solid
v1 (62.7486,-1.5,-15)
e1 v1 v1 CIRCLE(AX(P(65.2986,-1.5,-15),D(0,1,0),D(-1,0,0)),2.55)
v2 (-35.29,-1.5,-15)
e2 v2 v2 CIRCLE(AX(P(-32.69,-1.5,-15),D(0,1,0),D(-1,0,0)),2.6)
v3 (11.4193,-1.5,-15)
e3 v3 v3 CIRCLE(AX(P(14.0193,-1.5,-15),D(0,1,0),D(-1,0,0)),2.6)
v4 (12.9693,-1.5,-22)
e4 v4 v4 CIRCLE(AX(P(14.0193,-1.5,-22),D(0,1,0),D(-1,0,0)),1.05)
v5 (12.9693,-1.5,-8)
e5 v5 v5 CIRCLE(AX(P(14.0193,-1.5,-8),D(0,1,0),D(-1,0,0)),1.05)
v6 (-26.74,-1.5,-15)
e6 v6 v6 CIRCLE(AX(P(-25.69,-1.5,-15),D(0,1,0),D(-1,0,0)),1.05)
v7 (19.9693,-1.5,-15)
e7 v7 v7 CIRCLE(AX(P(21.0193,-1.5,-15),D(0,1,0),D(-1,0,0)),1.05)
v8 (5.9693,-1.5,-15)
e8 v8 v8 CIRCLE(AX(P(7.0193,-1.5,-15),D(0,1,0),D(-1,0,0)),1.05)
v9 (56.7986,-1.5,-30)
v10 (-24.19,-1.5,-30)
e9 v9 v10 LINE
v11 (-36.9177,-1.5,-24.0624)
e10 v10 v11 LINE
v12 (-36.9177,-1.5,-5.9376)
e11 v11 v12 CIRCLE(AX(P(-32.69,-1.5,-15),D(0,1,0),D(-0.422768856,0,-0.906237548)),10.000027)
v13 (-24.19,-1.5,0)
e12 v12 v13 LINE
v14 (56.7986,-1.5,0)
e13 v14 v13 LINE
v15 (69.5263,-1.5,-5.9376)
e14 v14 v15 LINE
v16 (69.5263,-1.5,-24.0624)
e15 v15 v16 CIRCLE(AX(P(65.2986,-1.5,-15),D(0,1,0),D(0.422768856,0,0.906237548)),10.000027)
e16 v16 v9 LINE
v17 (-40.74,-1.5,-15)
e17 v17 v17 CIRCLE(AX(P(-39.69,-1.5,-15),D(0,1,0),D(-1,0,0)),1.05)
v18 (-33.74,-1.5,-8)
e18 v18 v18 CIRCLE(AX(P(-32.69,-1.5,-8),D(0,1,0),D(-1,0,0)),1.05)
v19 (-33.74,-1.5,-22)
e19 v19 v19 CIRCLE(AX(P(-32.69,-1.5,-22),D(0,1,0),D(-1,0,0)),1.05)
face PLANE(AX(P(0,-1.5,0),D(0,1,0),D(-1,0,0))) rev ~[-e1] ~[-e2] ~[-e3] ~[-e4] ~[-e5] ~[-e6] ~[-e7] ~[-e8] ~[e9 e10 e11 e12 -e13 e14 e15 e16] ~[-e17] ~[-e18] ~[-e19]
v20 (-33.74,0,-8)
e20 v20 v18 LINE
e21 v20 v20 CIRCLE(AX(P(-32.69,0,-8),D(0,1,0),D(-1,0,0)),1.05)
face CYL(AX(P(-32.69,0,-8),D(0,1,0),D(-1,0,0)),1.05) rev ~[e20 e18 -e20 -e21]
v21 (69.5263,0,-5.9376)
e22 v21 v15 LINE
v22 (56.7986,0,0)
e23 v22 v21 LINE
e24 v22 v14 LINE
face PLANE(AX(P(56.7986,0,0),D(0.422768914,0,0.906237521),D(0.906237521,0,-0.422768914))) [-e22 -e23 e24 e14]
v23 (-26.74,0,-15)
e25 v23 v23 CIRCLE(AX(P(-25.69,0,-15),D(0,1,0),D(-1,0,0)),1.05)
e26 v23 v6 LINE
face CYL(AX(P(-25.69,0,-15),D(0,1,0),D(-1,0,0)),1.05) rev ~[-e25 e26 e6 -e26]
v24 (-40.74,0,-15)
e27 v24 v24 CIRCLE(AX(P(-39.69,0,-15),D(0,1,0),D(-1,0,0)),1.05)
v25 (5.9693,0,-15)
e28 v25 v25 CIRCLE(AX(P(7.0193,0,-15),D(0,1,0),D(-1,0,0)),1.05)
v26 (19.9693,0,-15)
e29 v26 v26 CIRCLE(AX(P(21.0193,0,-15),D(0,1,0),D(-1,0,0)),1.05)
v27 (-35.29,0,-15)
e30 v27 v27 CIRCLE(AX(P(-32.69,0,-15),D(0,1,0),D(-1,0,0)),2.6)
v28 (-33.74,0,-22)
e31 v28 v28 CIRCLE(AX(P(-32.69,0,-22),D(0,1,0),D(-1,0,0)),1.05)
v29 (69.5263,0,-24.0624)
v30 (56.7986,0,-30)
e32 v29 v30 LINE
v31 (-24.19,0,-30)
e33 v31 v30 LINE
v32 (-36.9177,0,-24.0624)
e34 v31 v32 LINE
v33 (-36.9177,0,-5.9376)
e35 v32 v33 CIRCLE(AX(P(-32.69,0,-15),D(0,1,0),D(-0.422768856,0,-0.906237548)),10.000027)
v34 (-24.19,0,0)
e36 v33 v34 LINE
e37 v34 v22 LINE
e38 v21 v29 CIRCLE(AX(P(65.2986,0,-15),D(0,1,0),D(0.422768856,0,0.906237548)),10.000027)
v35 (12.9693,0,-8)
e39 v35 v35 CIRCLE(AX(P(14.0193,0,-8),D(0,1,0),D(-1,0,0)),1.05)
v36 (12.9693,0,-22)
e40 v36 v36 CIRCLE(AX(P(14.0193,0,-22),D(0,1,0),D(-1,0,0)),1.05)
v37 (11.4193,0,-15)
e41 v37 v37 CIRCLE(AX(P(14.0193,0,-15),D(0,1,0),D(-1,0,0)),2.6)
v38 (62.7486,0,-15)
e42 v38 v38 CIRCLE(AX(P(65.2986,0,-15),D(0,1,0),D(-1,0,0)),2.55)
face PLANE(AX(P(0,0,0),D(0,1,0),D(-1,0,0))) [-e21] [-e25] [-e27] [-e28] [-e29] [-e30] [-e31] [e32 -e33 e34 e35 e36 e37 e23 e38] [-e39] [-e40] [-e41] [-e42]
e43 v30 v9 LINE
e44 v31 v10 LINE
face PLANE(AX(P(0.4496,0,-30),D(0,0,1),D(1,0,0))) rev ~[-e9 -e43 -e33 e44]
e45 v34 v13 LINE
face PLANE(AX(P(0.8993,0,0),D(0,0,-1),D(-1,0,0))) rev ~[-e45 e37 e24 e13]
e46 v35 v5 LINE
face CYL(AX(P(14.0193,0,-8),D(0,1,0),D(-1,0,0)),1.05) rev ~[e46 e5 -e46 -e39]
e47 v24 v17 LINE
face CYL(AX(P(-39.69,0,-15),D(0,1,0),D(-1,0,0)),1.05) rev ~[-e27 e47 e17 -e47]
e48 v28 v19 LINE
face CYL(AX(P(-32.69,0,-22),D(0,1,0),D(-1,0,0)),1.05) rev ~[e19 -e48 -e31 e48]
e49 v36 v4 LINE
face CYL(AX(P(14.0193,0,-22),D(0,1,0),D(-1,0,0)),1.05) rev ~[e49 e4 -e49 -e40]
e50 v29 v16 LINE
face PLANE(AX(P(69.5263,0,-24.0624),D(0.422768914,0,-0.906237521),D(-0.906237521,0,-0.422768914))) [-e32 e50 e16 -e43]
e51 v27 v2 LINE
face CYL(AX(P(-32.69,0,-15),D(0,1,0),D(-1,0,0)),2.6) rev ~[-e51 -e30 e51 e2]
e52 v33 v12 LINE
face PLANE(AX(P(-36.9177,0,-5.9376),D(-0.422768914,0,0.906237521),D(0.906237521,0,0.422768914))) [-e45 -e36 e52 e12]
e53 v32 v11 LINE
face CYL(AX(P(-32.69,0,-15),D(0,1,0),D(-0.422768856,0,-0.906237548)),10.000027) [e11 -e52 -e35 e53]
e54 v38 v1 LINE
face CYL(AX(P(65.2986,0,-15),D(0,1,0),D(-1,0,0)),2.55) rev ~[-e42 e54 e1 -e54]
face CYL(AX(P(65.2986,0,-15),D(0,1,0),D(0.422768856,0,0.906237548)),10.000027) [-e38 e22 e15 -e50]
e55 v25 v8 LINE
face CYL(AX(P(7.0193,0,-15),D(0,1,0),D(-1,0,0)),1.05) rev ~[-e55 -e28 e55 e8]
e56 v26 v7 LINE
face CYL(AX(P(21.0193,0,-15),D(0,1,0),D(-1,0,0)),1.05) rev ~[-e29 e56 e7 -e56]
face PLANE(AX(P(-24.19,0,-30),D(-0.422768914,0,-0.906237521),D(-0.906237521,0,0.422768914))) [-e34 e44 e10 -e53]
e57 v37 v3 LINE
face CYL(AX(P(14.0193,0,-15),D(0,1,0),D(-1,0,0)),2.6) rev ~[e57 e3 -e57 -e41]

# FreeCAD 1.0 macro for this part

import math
import FreeCAD as App
import Part
import Sketcher
from FreeCAD import Vector
Q = App.Units.Quantity

doc = App.newDocument("Part")
body = doc.addObject("PartDesign::Body", "Body")

sketch1 = body.newObject("Sketcher::SketchObject", "Sketch")
sketch1.AttachmentSupport = (doc.getObject("XZ_Plane"), [""])
sketch1.MapMode = "FlatFace"
sketch1.addGeometry(Part.LineSegment(Vector(-24.2, -30, 0), Vector(-36.9, -24.1, 0)), False)
sketch1.addGeometry(Part.ArcOfCircle(Part.Circle(Vector(-32.7, -15, 0), Vector(0, 0, 1), 10), math.radians(115), math.radians(245)), False)
sketch1.addGeometry(Part.LineSegment(Vector(-36.9, -5.9, 0), Vector(-24.2, 0, 0)), False)
sketch1.addGeometry(Part.LineSegment(Vector(-24.2, 0, 0), Vector(56.8, 0, 0)), False)
sketch1.addGeometry(Part.LineSegment(Vector(56.8, 0, 0), Vector(69.5, -5.9, 0)), False)
sketch1.addGeometry(Part.ArcOfCircle(Part.Circle(Vector(65.3, -15, 0), Vector(0, 0, 1), 10), math.radians(-65), math.radians(65)), False)
sketch1.addGeometry(Part.LineSegment(Vector(69.5, -24.1, 0), Vector(56.8, -30, 0)), False)
sketch1.addGeometry(Part.LineSegment(Vector(56.8, -30, 0), Vector(-24.2, -30, 0)), False)
sketch1.addGeometry(Part.Circle(Vector(14, -8, 0), Vector(0, 0, 1), 1.1), False)
sketch1.addGeometry(Part.Circle(Vector(14, -22, 0), Vector(0, 0, 1), 1.1), False)
sketch1.addGeometry(Part.Circle(Vector(21, -15, 0), Vector(0, 0, 1), 1.1), False)
sketch1.addGeometry(Part.Circle(Vector(14, -15, 0), Vector(0, 0, 1), 2.6), False)
sketch1.addGeometry(Part.Circle(Vector(7, -15, 0), Vector(0, 0, 1), 1.1), False)
sketch1.addGeometry(Part.Circle(Vector(-32.7, -8, 0), Vector(0, 0, 1), 1.1), False)
sketch1.addGeometry(Part.Circle(Vector(-32.7, -22, 0), Vector(0, 0, 1), 1.1), False)
sketch1.addGeometry(Part.Circle(Vector(-25.7, -15, 0), Vector(0, 0, 1), 1.1), False)
sketch1.addGeometry(Part.Circle(Vector(-32.7, -15, 0), Vector(0, 0, 1), 2.6), False)
sketch1.addGeometry(Part.Circle(Vector(-39.7, -15, 0), Vector(0, 0, 1), 1.1), False)
sketch1.addGeometry(Part.Circle(Vector(65.3, -15, 0), Vector(0, 0, 1), 2.5), False)
sketch1.addConstraint(Sketcher.Constraint("Tangent", 0, 2, 1, 2))
sketch1.addConstraint(Sketcher.Constraint("Tangent", 1, 1, 2, 1))
sketch1.addConstraint(Sketcher.Constraint("Coincident", 2, 2, 3, 1))
sketch1.addConstraint(Sketcher.Constraint("Coincident", 3, 2, 4, 1))
sketch1.addConstraint(Sketcher.Constraint("Tangent", 4, 2, 5, 2))
sketch1.addConstraint(Sketcher.Constraint("Tangent", 5, 1, 6, 1))
sketch1.addConstraint(Sketcher.Constraint("Coincident", 6, 2, 7, 1))
sketch1.addConstraint(Sketcher.Constraint("Coincident", 7, 2, 0, 1))
sketch1.addConstraint(Sketcher.Constraint("Horizontal", 3))
sketch1.addConstraint(Sketcher.Constraint("Horizontal", 7))
sketch1.addConstraint(Sketcher.Constraint("Coincident", 16, 3, 1, 3))
sketch1.addConstraint(Sketcher.Constraint("Coincident", 18, 3, 5, 3))
sketch1.addConstraint(Sketcher.Constraint("Equal", 1, 5))
sketch1.addConstraint(Sketcher.Constraint("Equal", 8, 9))
sketch1.addConstraint(Sketcher.Constraint("Equal", 9, 10))
sketch1.addConstraint(Sketcher.Constraint("Equal", 10, 12))
sketch1.addConstraint(Sketcher.Constraint("Equal", 12, 13))
sketch1.addConstraint(Sketcher.Constraint("Equal", 13, 14))
sketch1.addConstraint(Sketcher.Constraint("Equal", 14, 15))
sketch1.addConstraint(Sketcher.Constraint("Equal", 11, 16))
sketch1.addConstraint(Sketcher.Constraint("Equal", 15, 17))
sketch1.addConstraint(Sketcher.Constraint("PointOnObject", 2, 2, -1))
sketch1.addConstraint(Sketcher.Constraint("Parallel", 0, 4))
sketch1.addConstraint(Sketcher.Constraint("Parallel", 2, 6))
sketch1.addConstraint(Sketcher.Constraint("Horizontal", 1, 3, 5, 3))
sketch1.addConstraint(Sketcher.Constraint("Horizontal", 5, 3, 10, 3))
sketch1.addConstraint(Sketcher.Constraint("Horizontal", 10, 3, 11, 3))
sketch1.addConstraint(Sketcher.Constraint("Horizontal", 11, 3, 12, 3))
sketch1.addConstraint(Sketcher.Constraint("Horizontal", 8, 3, 13, 3))
sketch1.addConstraint(Sketcher.Constraint("Horizontal", 9, 3, 14, 3))
sketch1.addConstraint(Sketcher.Constraint("Horizontal", 12, 3, 15, 3))
sketch1.addConstraint(Sketcher.Constraint("Horizontal", 16, 3, 17, 3))
sketch1.addConstraint(Sketcher.Constraint("Horizontal", 1, 1, 4, 2))
sketch1.addConstraint(Sketcher.Constraint("Vertical", 8, 3, 9, 3))
sketch1.addConstraint(Sketcher.Constraint("Vertical", 9, 3, 11, 3))
sketch1.addConstraint(Sketcher.Constraint("Vertical", 1, 3, 13, 3))
sketch1.addConstraint(Sketcher.Constraint("Vertical", 13, 3, 14, 3))
sketch1.addConstraint(Sketcher.Constraint("Vertical", 3, 2, 6, 2))
sketch1.addConstraint(Sketcher.Constraint("Radius", 1, 10.0))
sketch1.addConstraint(Sketcher.Constraint("Diameter", 8, 2.1))
sketch1.addConstraint(Sketcher.Constraint("Diameter", 11, 5.2))
sketch1.addConstraint(Sketcher.Constraint("Diameter", 18, 5.1))
sketch1.addConstraint(Sketcher.Constraint("DistanceY", 1, 3, -1, 1, 15.0))
sketch1.addConstraint(Sketcher.Constraint("DistanceY", 8, 3, -1, 1, 8.0))
sketch1.addConstraint(Sketcher.Constraint("DistanceY", 9, 3, -1, 1, 22.0))
sketch1.addConstraint(Sketcher.Constraint("DistanceX", 8, 3, 10, 3, 7.0))
sketch1.addConstraint(Sketcher.Constraint("DistanceX", 12, 3, 11, 3, 7.0))
sketch1.addConstraint(Sketcher.Constraint("DistanceX", 1, 3, 15, 3, 7.0))
sketch1.addConstraint(Sketcher.Constraint("DistanceX", 17, 3, 1, 3, 7.0))
sketch1.addConstraint(Sketcher.Constraint("Angle", 0, Q("154.9905 deg")))
sketch1.addConstraint(Sketcher.Constraint("DistanceX", 1, 3, -1, 1, 32.69))
sketch1.addConstraint(Sketcher.Constraint("DistanceX", 3, 1, 3, 2, 80.9886))
sketch1.addConstraint(Sketcher.Constraint("DistanceX", 10, 3, 4, 2, 48.507))
pad1 = body.newObject("PartDesign::Pad", "Pad")
pad1.Profile = sketch1
pad1.Length = 1.5

doc.recompute()
